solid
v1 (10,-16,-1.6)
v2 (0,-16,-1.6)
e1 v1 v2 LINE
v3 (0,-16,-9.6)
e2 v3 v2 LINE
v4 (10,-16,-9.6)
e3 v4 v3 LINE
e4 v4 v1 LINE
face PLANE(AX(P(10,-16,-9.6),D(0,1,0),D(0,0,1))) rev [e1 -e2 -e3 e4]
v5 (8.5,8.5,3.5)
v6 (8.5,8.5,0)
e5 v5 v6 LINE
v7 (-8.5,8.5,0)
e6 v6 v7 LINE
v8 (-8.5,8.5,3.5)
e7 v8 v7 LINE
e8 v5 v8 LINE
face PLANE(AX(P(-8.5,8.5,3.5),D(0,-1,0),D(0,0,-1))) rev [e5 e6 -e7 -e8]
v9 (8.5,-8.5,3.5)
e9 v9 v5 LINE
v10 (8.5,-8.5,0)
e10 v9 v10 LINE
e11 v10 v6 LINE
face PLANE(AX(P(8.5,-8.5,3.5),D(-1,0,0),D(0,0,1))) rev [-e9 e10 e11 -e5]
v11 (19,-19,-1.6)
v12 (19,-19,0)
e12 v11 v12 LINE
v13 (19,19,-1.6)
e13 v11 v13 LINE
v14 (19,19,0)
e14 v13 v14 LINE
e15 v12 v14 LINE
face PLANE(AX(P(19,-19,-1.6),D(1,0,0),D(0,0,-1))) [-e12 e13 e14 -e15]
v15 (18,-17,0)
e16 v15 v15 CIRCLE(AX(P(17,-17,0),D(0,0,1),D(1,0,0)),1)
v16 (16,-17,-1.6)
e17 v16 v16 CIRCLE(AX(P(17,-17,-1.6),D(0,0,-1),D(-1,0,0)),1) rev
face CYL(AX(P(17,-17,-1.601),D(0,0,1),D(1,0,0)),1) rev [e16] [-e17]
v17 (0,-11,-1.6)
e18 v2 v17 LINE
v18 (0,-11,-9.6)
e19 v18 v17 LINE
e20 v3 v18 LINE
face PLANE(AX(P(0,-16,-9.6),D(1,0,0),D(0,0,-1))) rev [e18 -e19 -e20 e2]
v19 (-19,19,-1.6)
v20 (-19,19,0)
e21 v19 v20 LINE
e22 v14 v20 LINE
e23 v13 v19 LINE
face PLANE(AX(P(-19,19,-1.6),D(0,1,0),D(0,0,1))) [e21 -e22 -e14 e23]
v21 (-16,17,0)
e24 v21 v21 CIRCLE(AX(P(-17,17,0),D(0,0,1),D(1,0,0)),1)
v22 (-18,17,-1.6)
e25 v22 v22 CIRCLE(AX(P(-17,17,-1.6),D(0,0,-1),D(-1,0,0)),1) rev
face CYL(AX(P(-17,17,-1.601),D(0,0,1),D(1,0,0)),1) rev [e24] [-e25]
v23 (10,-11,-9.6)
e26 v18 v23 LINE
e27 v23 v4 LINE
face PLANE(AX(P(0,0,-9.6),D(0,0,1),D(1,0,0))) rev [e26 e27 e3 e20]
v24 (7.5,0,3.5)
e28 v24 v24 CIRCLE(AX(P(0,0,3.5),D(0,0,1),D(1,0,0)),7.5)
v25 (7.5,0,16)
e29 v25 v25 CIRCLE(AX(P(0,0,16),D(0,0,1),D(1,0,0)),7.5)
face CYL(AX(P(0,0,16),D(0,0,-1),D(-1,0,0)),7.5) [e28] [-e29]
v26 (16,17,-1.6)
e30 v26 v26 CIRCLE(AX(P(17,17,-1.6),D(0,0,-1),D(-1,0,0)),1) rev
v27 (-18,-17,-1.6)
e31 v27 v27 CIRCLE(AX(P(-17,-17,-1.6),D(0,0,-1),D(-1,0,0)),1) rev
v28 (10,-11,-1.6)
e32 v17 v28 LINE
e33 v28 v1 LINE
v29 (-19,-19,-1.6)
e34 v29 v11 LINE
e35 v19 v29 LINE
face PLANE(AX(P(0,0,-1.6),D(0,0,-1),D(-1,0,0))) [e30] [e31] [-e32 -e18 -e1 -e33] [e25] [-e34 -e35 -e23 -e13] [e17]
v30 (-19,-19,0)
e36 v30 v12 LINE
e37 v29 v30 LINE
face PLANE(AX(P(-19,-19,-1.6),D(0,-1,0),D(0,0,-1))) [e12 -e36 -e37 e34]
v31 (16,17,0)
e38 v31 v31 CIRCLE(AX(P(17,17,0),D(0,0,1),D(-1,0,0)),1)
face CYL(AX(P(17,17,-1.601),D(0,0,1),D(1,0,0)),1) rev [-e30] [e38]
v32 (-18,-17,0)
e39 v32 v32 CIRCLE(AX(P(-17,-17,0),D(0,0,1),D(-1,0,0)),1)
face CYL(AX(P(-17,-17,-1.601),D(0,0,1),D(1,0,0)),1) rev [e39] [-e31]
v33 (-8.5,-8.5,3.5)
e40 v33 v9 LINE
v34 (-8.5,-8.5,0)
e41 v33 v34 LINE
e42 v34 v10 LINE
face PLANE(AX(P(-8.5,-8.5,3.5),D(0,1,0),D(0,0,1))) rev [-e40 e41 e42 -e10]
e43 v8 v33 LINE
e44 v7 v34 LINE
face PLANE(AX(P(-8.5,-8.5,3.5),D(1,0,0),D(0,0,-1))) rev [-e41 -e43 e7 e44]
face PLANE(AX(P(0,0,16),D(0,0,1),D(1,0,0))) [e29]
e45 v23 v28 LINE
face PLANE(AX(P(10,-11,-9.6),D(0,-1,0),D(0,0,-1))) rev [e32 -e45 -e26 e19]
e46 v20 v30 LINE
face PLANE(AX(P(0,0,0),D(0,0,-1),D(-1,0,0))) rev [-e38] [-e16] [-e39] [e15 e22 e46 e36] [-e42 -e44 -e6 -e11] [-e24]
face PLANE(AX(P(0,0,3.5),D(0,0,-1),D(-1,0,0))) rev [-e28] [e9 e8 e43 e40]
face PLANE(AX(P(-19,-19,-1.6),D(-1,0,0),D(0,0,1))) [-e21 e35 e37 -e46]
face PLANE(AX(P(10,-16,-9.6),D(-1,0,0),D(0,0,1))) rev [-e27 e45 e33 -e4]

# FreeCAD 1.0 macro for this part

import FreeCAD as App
import Part
import Sketcher

V = App.Vector
Q = App.Units.Quantity

doc = App.newDocument("Part")
params = doc.addObject("Spreadsheet::Sheet", "Params")
for row, (alias, value) in enumerate([
    ("sketch1_width", "38 mm"),
    ("pad1_length", "1.6 mm"),
    ("sketch2_width", "17 mm"),
    ("pad2_length", "3.5 mm"),
    ("sketch3_diameter", "15 mm"),
    ("pad3_length", "12.5 mm"),
    ("sketch4_diameter", "2 mm"),
    ("sketch5_diameter", "2 mm"),
    ("sketch6_diameter", "2 mm"),
    ("sketch7_diameter", "2 mm"),
    ("sketch8_width", "10 mm"),
    ("sketch8_height", "5 mm"),
    ("pad4_length", "8 mm"),
], start=1):
    params.set(f"A{row}", alias)
    params.set(f"B{row}", "=" + value)
    params.setAlias(f"B{row}", alias)

body = doc.addObject("PartDesign::Body", "Body")

# Sketch on XY plane
sketch1 = body.newObject("Sketcher::SketchObject", "Sketch")
sketch1.AttachmentSupport = (doc.getObject("XY_Plane"), [""])
sketch1.MapMode = "FlatFace"
sketch1.addGeometry([
    Part.LineSegment(V(-19, 19, 0), V(-19, -19, 0)),
    Part.LineSegment(V(-19, -19, 0), V(19, -19, 0)),
    Part.LineSegment(V(19, -19, 0), V(19, 19, 0)),
    Part.LineSegment(V(19, 19, 0), V(-19, 19, 0)),
], False)
sketch1.addConstraint([
    Sketcher.Constraint("Coincident", 0, 2, 1, 1),
    Sketcher.Constraint("Coincident", 1, 2, 2, 1),
    Sketcher.Constraint("Coincident", 2, 2, 3, 1),
    Sketcher.Constraint("Coincident", 3, 2, 0, 1),
    Sketcher.Constraint("Vertical", 0),
    Sketcher.Constraint("Horizontal", 1),
    Sketcher.Constraint("Vertical", 2),
    Sketcher.Constraint("Horizontal", 3),
    Sketcher.Constraint("Symmetric", 0, 2, 2, 2, -1, 1),
    Sketcher.Constraint("Equal", 3, 0),
    Sketcher.Constraint("DistanceX", 1, 1, 1, 2, Q("38 mm")),
])
sketch1.setExpression("Constraints[10]", "Params.sketch1_width")
pad1 = body.newObject("PartDesign::Pad", "Pad")
pad1.Profile = sketch1
pad1.setExpression("Length", "Params.pad1_length")
pad1.Reversed = True

# Sketch on XY plane
sketch2 = body.newObject("Sketcher::SketchObject", "Sketch001")
sketch2.AttachmentSupport = (doc.getObject("XY_Plane"), [""])
sketch2.MapMode = "FlatFace"
sketch2.addGeometry([
    Part.LineSegment(V(-8.5, 8.5, 0), V(-8.5, -8.5, 0)),
    Part.LineSegment(V(-8.5, -8.5, 0), V(8.5, -8.5, 0)),
    Part.LineSegment(V(8.5, -8.5, 0), V(8.5, 8.5, 0)),
    Part.LineSegment(V(8.5, 8.5, 0), V(-8.5, 8.5, 0)),
], False)
sketch2.addConstraint([
    Sketcher.Constraint("Coincident", 0, 2, 1, 1),
    Sketcher.Constraint("Coincident", 1, 2, 2, 1),
    Sketcher.Constraint("Coincident", 2, 2, 3, 1),
    Sketcher.Constraint("Coincident", 3, 2, 0, 1),
    Sketcher.Constraint("Vertical", 0),
    Sketcher.Constraint("Horizontal", 1),
    Sketcher.Constraint("Vertical", 2),
    Sketcher.Constraint("Horizontal", 3),
    Sketcher.Constraint("Symmetric", 0, 2, 2, 2, -1, 1),
    Sketcher.Constraint("Equal", 3, 0),
    Sketcher.Constraint("DistanceX", 1, 1, 1, 2, Q("17 mm")),
])
sketch2.setExpression("Constraints[10]", "Params.sketch2_width")
pad2 = body.newObject("PartDesign::Pad", "Pad001")
pad2.Profile = sketch2
pad2.setExpression("Length", "Params.pad2_length")

# Sketch on XY plane
sketch3 = body.newObject("Sketcher::SketchObject", "Sketch002")
sketch3.AttachmentSupport = (doc.getObject("XY_Plane"), [""])
sketch3.MapMode = "FlatFace"
sketch3.AttachmentOffset = App.Placement(V(0, 0, 3.5), App.Rotation())
sketch3.addGeometry(Part.Circle(V(0, 0, 0), V(0, 0, 1), 7.5), False)
sketch3.addConstraint([
    Sketcher.Constraint("Coincident", 0, 3, -1, 1),
    Sketcher.Constraint("Diameter", 0, Q("15 mm")),
])
sketch3.setExpression("Constraints[1]", "Params.sketch3_diameter")
pad3 = body.newObject("PartDesign::Pad", "Pad002")
pad3.Profile = sketch3
pad3.setExpression("Length", "Params.pad3_length")

# Sketch on XY plane
sketch4 = body.newObject("Sketcher::SketchObject", "Sketch003")
sketch4.AttachmentSupport = (doc.getObject("XY_Plane"), [""])
sketch4.MapMode = "FlatFace"
sketch4.addGeometry(Part.Circle(V(-17, 17, 0), V(0, 0, 1), 1), False)
sketch4.addConstraint([
    Sketcher.Constraint("Diameter", 0, Q("2 mm")),
    Sketcher.Constraint("DistanceX", 0, 3, -1, 1, Q("17 mm")),
    Sketcher.Constraint("DistanceY", -1, 1, 0, 3, Q("17 mm")),
])
sketch4.setExpression("Constraints[0]", "Params.sketch4_diameter")
pocket1 = body.newObject("PartDesign::Pocket", "Pocket")
pocket1.Profile = sketch4
pocket1.Type = "UpToFirst"

# Sketch on XY plane
sketch5 = body.newObject("Sketcher::SketchObject", "Sketch004")
sketch5.AttachmentSupport = (doc.getObject("XY_Plane"), [""])
sketch5.MapMode = "FlatFace"
sketch5.addGeometry(Part.Circle(V(17, 17, 0), V(0, 0, 1), 1), False)
sketch5.addConstraint([
    Sketcher.Constraint("Diameter", 0, Q("2 mm")),
    Sketcher.Constraint("DistanceX", -1, 1, 0, 3, Q("17 mm")),
    Sketcher.Constraint("DistanceY", -1, 1, 0, 3, Q("17 mm")),
])
sketch5.setExpression("Constraints[0]", "Params.sketch5_diameter")
pocket2 = body.newObject("PartDesign::Pocket", "Pocket001")
pocket2.Profile = sketch5
pocket2.Type = "UpToFirst"

# Sketch on XY plane
sketch6 = body.newObject("Sketcher::SketchObject", "Sketch005")
sketch6.AttachmentSupport = (doc.getObject("XY_Plane"), [""])
sketch6.MapMode = "FlatFace"
sketch6.addGeometry(Part.Circle(V(-17, -17, 0), V(0, 0, 1), 1), False)
sketch6.addConstraint([
    Sketcher.Constraint("Diameter", 0, Q("2 mm")),
    Sketcher.Constraint("DistanceX", 0, 3, -1, 1, Q("17 mm")),
    Sketcher.Constraint("DistanceY", 0, 3, -1, 1, Q("17 mm")),
])
sketch6.setExpression("Constraints[0]", "Params.sketch6_diameter")
pocket3 = body.newObject("PartDesign::Pocket", "Pocket002")
pocket3.Profile = sketch6
pocket3.Type = "UpToFirst"

# Sketch on XY plane
sketch7 = body.newObject("Sketcher::SketchObject", "Sketch006")
sketch7.AttachmentSupport = (doc.getObject("XY_Plane"), [""])
sketch7.MapMode = "FlatFace"
sketch7.addGeometry(Part.Circle(V(17, -17, 0), V(0, 0, 1), 1), False)
sketch7.addConstraint([
    Sketcher.Constraint("Diameter", 0, Q("2 mm")),
    Sketcher.Constraint("DistanceX", -1, 1, 0, 3, Q("17 mm")),
    Sketcher.Constraint("DistanceY", 0, 3, -1, 1, Q("17 mm")),
])
sketch7.setExpression("Constraints[0]", "Params.sketch7_diameter")
pocket4 = body.newObject("PartDesign::Pocket", "Pocket003")
pocket4.Profile = sketch7
pocket4.Type = "UpToFirst"

# Sketch on XY plane
sketch8 = body.newObject("Sketcher::SketchObject", "Sketch007")
sketch8.AttachmentSupport = (doc.getObject("XY_Plane"), [""])
sketch8.MapMode = "FlatFace"
sketch8.AttachmentOffset = App.Placement(V(0, 0, -1.6), App.Rotation())
sketch8.addGeometry([
    Part.LineSegment(V(10, -11, 0), V(10, -16, 0)),
    Part.LineSegment(V(10, -16, 0), V(0, -16, 0)),
    Part.LineSegment(V(0, -16, 0), V(0, -11, 0)),
    Part.LineSegment(V(0, -11, 0), V(10, -11, 0)),
], False)
sketch8.addConstraint([
    Sketcher.Constraint("Coincident", 0, 2, 1, 1),
    Sketcher.Constraint("Coincident", 1, 2, 2, 1),
    Sketcher.Constraint("Coincident", 2, 2, 3, 1),
    Sketcher.Constraint("Coincident", 3, 2, 0, 1),
    Sketcher.Constraint("Vertical", 0),
    Sketcher.Constraint("Horizontal", 1),
    Sketcher.Constraint("Vertical", 2),
    Sketcher.Constraint("Horizontal", 3),
    Sketcher.Constraint("PointOnObject", 1, 2, -2),
    Sketcher.Constraint("DistanceX", 1, 2, 1, 1, Q("10 mm")),
    Sketcher.Constraint("DistanceY", 0, 2, 0, 1, Q("5 mm")),
    Sketcher.Constraint("DistanceY", 0, 2, -1, 1, Q("16 mm")),
])
sketch8.setExpression("Constraints[9]", "Params.sketch8_width")
sketch8.setExpression("Constraints[10]", "Params.sketch8_height")
pad4 = body.newObject("PartDesign::Pad", "Pad003")
pad4.Profile = sketch8
pad4.setExpression("Length", "Params.pad4_length")
pad4.Reversed = True

doc.recompute()
